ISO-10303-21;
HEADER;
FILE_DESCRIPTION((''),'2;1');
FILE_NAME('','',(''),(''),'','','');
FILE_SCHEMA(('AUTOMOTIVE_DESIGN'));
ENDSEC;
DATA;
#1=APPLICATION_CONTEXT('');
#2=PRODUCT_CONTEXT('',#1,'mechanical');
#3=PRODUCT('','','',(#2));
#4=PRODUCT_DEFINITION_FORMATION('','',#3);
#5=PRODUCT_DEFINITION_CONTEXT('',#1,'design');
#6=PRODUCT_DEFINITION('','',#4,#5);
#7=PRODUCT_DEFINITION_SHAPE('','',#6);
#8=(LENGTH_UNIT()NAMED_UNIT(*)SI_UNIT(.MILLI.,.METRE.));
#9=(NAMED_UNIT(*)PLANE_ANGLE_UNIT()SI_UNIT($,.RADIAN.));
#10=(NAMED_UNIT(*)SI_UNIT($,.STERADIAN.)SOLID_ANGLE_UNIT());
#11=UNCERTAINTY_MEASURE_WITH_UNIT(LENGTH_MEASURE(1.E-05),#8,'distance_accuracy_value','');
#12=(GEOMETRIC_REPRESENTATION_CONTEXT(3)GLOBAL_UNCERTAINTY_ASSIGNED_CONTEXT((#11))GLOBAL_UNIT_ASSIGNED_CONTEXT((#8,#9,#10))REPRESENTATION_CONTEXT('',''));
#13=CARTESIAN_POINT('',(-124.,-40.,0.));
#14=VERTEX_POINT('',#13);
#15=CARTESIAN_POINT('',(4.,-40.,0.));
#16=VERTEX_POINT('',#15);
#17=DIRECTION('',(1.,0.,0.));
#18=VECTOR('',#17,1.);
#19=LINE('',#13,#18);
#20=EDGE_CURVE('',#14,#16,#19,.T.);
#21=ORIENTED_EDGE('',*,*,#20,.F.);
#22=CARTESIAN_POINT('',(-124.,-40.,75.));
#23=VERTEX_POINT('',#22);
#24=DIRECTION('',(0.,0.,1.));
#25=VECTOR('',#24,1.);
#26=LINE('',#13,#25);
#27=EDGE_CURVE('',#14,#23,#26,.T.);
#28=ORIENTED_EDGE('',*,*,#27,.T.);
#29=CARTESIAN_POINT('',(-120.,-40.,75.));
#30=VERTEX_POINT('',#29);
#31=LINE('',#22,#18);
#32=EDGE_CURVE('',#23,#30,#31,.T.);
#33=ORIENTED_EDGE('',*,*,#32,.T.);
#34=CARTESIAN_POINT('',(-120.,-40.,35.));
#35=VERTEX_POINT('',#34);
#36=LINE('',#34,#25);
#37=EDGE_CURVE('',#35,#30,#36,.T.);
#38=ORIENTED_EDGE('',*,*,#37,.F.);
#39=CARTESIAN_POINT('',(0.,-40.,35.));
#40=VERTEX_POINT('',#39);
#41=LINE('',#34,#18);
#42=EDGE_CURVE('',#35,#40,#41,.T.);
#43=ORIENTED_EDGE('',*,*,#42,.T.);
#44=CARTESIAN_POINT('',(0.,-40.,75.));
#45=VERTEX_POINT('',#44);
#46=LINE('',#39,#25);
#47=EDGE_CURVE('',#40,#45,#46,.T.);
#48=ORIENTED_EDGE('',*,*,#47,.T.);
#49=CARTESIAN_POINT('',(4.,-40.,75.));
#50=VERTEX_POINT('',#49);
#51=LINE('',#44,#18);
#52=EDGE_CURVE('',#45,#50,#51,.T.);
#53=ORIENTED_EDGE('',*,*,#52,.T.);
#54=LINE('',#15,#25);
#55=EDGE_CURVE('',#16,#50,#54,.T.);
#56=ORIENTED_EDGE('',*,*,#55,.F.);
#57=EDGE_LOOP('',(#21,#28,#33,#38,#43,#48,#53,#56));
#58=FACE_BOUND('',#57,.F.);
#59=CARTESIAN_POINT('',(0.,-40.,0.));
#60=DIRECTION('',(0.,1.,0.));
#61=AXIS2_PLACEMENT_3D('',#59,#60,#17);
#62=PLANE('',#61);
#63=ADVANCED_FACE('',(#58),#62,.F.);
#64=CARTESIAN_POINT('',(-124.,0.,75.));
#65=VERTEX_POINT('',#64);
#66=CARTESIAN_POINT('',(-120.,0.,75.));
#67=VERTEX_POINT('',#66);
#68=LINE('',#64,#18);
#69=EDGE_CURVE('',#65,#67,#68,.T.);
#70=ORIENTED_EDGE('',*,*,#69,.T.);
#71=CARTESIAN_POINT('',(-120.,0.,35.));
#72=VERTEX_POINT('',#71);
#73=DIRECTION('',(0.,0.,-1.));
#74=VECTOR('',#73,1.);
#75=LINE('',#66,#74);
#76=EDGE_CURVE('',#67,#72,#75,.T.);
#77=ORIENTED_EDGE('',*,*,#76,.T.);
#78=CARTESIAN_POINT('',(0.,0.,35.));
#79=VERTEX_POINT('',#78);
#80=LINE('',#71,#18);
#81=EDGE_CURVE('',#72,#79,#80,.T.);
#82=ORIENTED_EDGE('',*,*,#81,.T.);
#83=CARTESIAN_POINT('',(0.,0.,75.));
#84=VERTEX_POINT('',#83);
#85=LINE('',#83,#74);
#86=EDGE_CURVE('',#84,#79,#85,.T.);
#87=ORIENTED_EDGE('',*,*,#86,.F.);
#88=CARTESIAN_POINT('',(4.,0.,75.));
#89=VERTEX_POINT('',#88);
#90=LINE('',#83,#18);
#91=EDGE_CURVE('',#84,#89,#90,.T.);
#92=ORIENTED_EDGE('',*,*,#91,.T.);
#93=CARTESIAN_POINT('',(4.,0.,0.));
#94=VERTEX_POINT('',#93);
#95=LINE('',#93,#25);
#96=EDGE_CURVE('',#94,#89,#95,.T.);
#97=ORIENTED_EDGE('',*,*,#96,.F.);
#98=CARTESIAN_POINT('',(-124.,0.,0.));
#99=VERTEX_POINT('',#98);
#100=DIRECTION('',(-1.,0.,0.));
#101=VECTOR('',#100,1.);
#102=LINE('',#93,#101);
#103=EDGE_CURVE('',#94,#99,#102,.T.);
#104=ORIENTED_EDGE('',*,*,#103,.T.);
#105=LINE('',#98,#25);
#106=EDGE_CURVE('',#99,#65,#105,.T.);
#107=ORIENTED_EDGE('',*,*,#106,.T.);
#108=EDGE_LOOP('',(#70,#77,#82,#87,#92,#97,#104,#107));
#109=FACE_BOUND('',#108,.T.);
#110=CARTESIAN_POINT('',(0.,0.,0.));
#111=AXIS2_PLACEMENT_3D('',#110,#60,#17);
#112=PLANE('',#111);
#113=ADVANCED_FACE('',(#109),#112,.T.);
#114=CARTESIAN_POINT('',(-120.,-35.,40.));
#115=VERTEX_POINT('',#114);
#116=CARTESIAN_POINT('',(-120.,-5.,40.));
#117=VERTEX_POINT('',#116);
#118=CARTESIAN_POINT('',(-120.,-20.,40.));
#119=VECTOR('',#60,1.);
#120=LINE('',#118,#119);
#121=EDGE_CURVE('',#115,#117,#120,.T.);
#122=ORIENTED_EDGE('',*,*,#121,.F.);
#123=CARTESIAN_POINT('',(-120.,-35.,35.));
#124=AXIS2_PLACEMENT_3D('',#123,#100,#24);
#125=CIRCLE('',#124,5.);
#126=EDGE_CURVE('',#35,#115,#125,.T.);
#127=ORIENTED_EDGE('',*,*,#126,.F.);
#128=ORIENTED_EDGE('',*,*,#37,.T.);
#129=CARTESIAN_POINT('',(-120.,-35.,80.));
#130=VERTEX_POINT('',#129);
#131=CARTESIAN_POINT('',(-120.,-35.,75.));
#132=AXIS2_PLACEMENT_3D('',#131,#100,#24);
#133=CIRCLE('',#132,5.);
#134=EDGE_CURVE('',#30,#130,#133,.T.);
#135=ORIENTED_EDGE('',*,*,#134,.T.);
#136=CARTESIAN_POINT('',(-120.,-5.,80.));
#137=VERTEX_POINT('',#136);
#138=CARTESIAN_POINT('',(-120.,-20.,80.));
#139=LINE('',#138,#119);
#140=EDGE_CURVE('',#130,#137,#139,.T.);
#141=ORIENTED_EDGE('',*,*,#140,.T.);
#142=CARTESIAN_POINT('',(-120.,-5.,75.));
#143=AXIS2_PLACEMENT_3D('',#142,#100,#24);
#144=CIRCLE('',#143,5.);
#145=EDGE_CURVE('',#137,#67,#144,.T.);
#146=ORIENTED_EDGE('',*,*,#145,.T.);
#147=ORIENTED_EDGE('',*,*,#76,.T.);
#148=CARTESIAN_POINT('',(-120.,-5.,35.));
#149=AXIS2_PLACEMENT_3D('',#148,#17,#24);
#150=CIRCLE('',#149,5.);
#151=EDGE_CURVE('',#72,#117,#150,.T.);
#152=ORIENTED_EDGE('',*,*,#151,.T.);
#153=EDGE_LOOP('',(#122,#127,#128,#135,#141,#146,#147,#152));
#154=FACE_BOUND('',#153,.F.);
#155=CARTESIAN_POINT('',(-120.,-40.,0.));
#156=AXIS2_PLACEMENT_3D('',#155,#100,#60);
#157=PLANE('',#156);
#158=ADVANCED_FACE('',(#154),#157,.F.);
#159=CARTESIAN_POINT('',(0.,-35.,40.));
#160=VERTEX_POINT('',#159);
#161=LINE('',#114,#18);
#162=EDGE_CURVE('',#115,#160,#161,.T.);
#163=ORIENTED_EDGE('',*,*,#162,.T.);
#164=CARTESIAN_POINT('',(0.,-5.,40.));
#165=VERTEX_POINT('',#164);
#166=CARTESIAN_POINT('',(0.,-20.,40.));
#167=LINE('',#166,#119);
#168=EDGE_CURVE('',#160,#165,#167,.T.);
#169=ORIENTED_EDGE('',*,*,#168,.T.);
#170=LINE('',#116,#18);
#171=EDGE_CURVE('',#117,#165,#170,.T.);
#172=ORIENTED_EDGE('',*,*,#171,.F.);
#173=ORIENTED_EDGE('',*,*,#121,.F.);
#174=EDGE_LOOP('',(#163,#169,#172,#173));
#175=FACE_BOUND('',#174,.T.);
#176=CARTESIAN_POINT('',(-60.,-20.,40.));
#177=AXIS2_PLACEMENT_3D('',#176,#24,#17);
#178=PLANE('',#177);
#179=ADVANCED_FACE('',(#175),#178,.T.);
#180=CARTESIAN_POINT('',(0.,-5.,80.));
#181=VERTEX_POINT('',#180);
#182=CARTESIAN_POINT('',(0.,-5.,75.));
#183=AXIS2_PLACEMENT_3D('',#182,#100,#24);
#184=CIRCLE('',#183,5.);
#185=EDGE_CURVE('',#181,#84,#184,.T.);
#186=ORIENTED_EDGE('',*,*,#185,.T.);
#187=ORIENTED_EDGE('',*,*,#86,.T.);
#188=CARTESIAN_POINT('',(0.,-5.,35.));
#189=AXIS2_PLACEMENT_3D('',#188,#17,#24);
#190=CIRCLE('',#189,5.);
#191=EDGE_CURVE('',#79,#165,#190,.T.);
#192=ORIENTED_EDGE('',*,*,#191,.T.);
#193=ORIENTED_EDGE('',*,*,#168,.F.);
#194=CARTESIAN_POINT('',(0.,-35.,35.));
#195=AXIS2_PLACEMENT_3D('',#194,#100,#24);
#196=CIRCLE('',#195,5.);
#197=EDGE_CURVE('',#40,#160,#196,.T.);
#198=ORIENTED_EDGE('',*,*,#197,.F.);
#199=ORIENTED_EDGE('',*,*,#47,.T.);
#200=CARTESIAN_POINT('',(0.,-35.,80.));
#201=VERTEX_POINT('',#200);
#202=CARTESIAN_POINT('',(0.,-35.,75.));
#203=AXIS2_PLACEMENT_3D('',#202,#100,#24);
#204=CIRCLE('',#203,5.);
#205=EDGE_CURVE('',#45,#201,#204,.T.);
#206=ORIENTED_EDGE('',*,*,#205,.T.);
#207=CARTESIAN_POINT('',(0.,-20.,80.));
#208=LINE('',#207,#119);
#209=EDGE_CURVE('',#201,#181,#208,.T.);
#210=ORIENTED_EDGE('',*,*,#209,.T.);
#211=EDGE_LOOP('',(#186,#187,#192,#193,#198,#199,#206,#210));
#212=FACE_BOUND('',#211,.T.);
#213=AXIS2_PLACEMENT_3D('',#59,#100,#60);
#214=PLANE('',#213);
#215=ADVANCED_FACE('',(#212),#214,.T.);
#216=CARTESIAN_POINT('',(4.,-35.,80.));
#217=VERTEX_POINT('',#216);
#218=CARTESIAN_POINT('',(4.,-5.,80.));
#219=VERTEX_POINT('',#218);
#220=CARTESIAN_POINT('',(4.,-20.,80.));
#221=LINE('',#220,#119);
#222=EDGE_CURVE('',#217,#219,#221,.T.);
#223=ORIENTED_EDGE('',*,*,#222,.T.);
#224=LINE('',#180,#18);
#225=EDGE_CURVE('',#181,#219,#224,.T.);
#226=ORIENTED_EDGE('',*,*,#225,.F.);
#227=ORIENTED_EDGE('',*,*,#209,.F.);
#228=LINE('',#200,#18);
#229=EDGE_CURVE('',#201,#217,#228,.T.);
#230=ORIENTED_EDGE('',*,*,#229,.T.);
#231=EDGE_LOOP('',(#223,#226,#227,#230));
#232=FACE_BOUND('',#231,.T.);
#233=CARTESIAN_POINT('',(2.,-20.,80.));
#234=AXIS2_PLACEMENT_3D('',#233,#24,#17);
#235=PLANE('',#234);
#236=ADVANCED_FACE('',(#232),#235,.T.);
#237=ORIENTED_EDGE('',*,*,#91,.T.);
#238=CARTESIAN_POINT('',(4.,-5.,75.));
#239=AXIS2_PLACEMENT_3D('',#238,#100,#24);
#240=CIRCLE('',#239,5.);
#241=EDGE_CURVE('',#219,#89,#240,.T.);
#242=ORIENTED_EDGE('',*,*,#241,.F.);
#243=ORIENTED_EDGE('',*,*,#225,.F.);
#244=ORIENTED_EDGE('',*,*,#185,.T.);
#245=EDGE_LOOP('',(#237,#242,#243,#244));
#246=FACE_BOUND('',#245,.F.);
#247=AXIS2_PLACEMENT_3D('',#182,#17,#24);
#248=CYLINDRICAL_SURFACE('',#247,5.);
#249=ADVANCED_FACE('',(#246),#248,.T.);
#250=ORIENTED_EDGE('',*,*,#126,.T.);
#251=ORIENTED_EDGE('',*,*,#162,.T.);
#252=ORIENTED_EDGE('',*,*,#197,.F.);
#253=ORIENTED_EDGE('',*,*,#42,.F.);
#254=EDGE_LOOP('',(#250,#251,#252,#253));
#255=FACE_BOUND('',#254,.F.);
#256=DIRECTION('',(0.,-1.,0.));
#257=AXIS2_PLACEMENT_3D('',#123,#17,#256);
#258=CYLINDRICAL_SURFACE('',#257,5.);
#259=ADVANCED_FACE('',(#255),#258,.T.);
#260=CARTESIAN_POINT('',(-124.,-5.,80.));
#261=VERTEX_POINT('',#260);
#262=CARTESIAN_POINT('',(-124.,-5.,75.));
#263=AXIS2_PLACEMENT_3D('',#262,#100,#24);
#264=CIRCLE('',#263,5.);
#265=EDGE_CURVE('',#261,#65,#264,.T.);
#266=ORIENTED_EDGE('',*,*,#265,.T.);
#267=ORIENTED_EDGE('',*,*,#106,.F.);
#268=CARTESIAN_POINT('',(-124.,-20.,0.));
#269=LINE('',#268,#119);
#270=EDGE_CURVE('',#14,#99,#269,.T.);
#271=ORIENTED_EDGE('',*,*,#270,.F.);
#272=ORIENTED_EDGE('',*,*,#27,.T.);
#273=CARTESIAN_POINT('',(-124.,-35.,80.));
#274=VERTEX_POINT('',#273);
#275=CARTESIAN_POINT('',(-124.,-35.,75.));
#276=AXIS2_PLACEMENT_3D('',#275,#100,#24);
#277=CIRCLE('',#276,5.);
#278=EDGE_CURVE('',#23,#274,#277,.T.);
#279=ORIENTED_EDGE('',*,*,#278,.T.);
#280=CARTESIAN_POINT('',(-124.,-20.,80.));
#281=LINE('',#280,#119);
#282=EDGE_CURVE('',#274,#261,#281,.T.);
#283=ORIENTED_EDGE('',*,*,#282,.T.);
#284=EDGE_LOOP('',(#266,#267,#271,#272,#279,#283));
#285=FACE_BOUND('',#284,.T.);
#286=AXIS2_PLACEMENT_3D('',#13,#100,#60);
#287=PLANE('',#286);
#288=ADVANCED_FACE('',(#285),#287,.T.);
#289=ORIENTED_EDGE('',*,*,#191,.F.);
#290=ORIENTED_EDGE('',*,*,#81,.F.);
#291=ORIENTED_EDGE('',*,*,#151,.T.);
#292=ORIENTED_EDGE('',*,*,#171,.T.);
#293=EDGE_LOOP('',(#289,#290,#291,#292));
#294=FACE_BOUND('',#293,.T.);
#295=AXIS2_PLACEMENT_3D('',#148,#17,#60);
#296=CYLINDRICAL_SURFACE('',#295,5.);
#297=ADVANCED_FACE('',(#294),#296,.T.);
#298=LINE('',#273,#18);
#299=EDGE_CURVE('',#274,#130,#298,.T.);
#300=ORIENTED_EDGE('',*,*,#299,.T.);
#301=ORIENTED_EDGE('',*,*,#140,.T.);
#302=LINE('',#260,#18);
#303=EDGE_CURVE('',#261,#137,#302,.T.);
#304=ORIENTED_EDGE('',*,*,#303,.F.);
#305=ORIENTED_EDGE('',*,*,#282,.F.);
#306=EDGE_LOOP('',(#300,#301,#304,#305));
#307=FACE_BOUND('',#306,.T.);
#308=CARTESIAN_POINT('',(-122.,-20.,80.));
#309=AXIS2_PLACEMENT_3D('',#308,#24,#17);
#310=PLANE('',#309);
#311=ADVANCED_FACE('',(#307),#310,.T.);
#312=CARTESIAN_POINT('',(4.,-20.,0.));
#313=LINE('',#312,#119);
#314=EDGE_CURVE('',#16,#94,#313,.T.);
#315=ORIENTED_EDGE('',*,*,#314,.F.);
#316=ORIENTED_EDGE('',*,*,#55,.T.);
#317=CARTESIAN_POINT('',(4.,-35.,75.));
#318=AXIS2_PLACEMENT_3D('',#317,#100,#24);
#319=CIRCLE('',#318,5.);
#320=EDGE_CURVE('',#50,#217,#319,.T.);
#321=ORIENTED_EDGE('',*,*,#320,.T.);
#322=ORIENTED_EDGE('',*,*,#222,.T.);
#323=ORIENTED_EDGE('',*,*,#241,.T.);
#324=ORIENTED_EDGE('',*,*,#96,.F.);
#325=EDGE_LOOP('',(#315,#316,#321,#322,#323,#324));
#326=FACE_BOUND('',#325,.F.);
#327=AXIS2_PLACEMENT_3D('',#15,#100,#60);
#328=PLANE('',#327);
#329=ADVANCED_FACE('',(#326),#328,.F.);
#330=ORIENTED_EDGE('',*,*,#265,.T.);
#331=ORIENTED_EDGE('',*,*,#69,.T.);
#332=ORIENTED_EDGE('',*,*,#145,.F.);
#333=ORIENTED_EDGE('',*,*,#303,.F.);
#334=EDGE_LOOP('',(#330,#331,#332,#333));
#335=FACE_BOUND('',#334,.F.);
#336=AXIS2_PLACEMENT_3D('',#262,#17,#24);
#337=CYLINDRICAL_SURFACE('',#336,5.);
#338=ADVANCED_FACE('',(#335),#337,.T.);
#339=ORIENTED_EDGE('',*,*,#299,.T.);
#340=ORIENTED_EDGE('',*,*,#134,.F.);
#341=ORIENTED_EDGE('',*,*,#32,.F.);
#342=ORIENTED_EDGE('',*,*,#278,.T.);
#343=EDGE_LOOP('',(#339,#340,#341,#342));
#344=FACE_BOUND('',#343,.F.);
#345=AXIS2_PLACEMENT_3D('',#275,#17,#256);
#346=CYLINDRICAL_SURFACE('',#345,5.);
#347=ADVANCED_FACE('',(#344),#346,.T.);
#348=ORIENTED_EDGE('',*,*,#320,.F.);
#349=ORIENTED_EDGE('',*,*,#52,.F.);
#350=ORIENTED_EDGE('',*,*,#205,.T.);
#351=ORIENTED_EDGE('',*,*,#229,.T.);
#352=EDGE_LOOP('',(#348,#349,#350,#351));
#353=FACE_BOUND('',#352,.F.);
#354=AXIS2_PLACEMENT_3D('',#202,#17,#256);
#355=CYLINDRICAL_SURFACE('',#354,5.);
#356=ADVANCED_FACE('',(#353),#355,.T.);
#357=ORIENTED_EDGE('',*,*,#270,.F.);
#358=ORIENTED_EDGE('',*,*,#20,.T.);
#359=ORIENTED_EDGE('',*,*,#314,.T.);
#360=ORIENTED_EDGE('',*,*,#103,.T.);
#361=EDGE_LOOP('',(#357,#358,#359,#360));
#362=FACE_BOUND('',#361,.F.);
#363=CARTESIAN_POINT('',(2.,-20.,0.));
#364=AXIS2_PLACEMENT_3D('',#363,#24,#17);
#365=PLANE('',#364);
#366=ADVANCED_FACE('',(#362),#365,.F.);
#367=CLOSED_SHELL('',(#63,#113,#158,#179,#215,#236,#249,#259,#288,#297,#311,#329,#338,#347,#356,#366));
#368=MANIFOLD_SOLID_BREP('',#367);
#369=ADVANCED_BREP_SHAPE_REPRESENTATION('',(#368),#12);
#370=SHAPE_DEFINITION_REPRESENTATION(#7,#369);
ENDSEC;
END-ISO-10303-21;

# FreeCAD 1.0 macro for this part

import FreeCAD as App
import Part
import Sketcher
Q = App.Units.Quantity


def edges_at(feature, points):
    """Names of the edges that pass closest to the given points."""
    edges = feature.Shape.Edges
    near = lambda p: min(range(len(edges)), key=lambda i: edges[i].distToShape(Part.Vertex(*p))[0])
    return sorted({f"Edge{near(p) + 1}" for p in points})

doc = App.newDocument("Part")
body = doc.addObject("PartDesign::Body", "Body")

sketch1 = body.newObject("Sketcher::SketchObject", "Sketch")
sketch1.AttachmentSupport = (doc.getObject("XY_Plane"), [""])
sketch1.MapMode = "FlatFace"
sketch1.addGeometry([
    Part.LineSegment(App.Vector(-120, 0, 0), App.Vector(-120, -40, 0)),
    Part.LineSegment(App.Vector(-120, -40, 0), App.Vector(0, -40, 0)),
    Part.LineSegment(App.Vector(0, -40, 0), App.Vector(0, 0, 0)),
    Part.LineSegment(App.Vector(0, 0, 0), App.Vector(-120, 0, 0)),
], False)
sketch1.addConstraint([
    Sketcher.Constraint("Coincident", 0, 2, 1, 1),
    Sketcher.Constraint("Coincident", 1, 2, 2, 1),
    Sketcher.Constraint("Coincident", 2, 2, 3, 1),
    Sketcher.Constraint("Coincident", 3, 2, 0, 1),
    Sketcher.Constraint("Vertical", 0),
    Sketcher.Constraint("Horizontal", 1),
    Sketcher.Constraint("Vertical", 2),
    Sketcher.Constraint("Horizontal", 3),
    Sketcher.Constraint("Coincident", 2, 2, -1, 1),
    Sketcher.Constraint("DistanceX", 1, 1, 1, 2, Q("120 mm")),
    Sketcher.Constraint("DistanceY", 0, 2, 0, 1, Q("40 mm")),
])
pad1 = body.newObject("PartDesign::Pad", "Pad")
pad1.Profile = sketch1
pad1.Length = 40

sketch2 = body.newObject("Sketcher::SketchObject", "Sketch001")
sketch2.AttachmentSupport = (doc.getObject("XY_Plane"), [""])
sketch2.MapMode = "FlatFace"
sketch2.addGeometry([
    Part.LineSegment(App.Vector(0, 0, 0), App.Vector(0, -40, 0)),
    Part.LineSegment(App.Vector(0, -40, 0), App.Vector(4, -40, 0)),
    Part.LineSegment(App.Vector(4, -40, 0), App.Vector(4, 0, 0)),
    Part.LineSegment(App.Vector(4, 0, 0), App.Vector(0, 0, 0)),
    Part.LineSegment(App.Vector(-124, 0, 0), App.Vector(-124, -40, 0)),
    Part.LineSegment(App.Vector(-124, -40, 0), App.Vector(-120, -40, 0)),
    Part.LineSegment(App.Vector(-120, -40, 0), App.Vector(-120, 0, 0)),
    Part.LineSegment(App.Vector(-120, 0, 0), App.Vector(-124, 0, 0)),
], False)
sketch2.addConstraint([
    Sketcher.Constraint("Coincident", 0, 2, 1, 1),
    Sketcher.Constraint("Coincident", 1, 2, 2, 1),
    Sketcher.Constraint("Coincident", 2, 2, 3, 1),
    Sketcher.Constraint("Coincident", 3, 2, 0, 1),
    Sketcher.Constraint("Coincident", 4, 2, 5, 1),
    Sketcher.Constraint("Coincident", 5, 2, 6, 1),
    Sketcher.Constraint("Coincident", 6, 2, 7, 1),
    Sketcher.Constraint("Coincident", 7, 2, 4, 1),
    Sketcher.Constraint("Vertical", 0),
    Sketcher.Constraint("Horizontal", 1),
    Sketcher.Constraint("Vertical", 2),
    Sketcher.Constraint("Horizontal", 3),
    Sketcher.Constraint("Vertical", 4),
    Sketcher.Constraint("Horizontal", 5),
    Sketcher.Constraint("Vertical", 6),
    Sketcher.Constraint("Horizontal", 7),
    Sketcher.Constraint("Coincident", 3, 2, -1, 1),
    Sketcher.Constraint("PointOnObject", 6, 2, -1),
    Sketcher.Constraint("Horizontal", 1, 2, 4, 2),
    Sketcher.Constraint("Equal", 3, 5),
    Sketcher.Constraint("DistanceX", 1, 1, 1, 2, Q("4 mm")),
    Sketcher.Constraint("DistanceY", 0, 2, 0, 1, Q("40 mm")),
    Sketcher.Constraint("DistanceX", 4, 2, -1, 1, Q("124 mm")),
])
pad2 = body.newObject("PartDesign::Pad", "Pad001")
pad2.Profile = sketch2
pad2.Length = 80
doc.recompute()

fillet = body.newObject("PartDesign::Fillet", "Fillet")
fillet.Base = (pad2, edges_at(pad2, [
    (-60, -40, 40),
    (-60, 0, 40),
    (-122, -40, 80),
    (-122, 0, 80),
    (2, -40, 80),
    (2, 0, 80),
]))
fillet.Radius = 5

doc.recompute()
